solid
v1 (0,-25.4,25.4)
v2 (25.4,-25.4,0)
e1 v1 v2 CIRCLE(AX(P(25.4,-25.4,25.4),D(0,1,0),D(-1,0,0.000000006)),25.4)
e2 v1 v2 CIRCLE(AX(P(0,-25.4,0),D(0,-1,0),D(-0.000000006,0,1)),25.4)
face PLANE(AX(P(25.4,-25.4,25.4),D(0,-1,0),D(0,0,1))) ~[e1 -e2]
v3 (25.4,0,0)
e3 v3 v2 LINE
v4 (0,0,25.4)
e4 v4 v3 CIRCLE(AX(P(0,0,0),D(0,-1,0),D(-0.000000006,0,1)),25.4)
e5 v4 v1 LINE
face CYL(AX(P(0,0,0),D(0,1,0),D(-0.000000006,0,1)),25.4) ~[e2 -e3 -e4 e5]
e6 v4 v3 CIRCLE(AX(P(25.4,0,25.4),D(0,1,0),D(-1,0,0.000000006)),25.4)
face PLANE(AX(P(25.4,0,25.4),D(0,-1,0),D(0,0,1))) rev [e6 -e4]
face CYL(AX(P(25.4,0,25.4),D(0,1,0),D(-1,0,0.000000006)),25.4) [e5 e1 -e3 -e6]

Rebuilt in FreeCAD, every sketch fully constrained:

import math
import FreeCAD as App
import Part
import Sketcher
Q = App.Units.Quantity

doc = App.newDocument("Part")
body = doc.addObject("PartDesign::Body", "Body")

# Sketch on XZ plane
sketch1 = body.newObject("Sketcher::SketchObject", "Sketch")
sketch1.AttachmentSupport = (doc.getObject("XZ_Plane"), [""])
sketch1.MapMode = "FlatFace"
sketch1.addGeometry([
    Part.LineSegment(App.Vector(25, 0, 0), App.Vector(0, 25, 0)),
    Part.ArcOfCircle(Part.Circle(App.Vector(0, 0, 0), App.Vector(0, 0, 1), 25), math.radians(90), math.radians(360)),
], False)
sketch1.addConstraint([
    Sketcher.Constraint("Coincident", 0, 1, 1, 2),
    Sketcher.Constraint("Coincident", 1, 1, 0, 2),
    Sketcher.Constraint("Coincident", 1, 3, -1, 1),
    Sketcher.Constraint("PointOnObject", 0, 1, -1),
    Sketcher.Constraint("PointOnObject", 1, 1, -2),
    Sketcher.Constraint("Radius", 1, Q("1 in")),
])
pad1 = body.newObject("PartDesign::Pad", "Pad")
pad1.Profile = sketch1
pad1.Length = Q("1 in")
body2 = doc.addObject("PartDesign::Body", "Body001")
doc.recompute()

body2.BaseFeature = body
doc.recompute()

mirroring = doc.addObject("Part::Mirroring", "Mirroring")
mirroring.Source = body
mirroring.Base = App.Vector(12.7, -12.7, 12.7)
mirroring.Normal = App.Vector(0.707106781, 0, 0.707106781)
body3 = doc.addObject("PartDesign::Body", "Body002")
body3.BaseFeature = mirroring
boolean = body2.newObject("PartDesign::Boolean", "Boolean")
boolean.Type = "Fuse"
boolean.addObjects([body3])
doc.recompute()
mirroring.Visibility = False

doc.recompute()
